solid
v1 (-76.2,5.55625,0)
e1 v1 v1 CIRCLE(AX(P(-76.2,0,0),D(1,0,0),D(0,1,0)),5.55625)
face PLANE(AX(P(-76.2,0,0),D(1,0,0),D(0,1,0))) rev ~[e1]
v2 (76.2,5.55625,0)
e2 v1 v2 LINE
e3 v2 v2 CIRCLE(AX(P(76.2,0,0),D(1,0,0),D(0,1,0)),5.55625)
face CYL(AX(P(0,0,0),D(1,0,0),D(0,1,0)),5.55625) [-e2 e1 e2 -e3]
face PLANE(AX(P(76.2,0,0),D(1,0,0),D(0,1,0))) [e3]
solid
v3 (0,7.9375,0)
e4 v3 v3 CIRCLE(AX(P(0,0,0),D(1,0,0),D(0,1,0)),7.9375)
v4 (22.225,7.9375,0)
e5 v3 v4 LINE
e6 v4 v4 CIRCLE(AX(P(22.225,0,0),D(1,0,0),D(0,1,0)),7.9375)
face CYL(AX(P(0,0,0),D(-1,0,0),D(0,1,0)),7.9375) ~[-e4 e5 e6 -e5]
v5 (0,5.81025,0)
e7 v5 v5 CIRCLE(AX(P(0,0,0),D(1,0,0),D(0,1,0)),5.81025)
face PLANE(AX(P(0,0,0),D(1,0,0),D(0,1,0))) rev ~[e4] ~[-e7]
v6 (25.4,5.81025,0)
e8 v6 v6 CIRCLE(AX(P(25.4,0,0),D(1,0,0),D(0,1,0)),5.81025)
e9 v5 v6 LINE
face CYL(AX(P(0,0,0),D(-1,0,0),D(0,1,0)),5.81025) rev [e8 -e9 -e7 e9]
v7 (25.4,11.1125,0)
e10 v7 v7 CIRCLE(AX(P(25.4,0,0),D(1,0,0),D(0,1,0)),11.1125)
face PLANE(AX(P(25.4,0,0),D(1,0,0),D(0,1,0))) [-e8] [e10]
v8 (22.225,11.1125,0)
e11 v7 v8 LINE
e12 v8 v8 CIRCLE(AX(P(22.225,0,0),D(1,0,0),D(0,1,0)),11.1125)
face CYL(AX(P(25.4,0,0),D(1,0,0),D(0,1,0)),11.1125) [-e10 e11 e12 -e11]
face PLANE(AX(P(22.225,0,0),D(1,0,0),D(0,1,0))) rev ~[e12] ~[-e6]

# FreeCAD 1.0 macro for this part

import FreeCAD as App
import Part
import Sketcher
from FreeCAD import Vector
Q = App.Units.Quantity

doc = App.newDocument("Part")
params = doc.addObject("Spreadsheet::Sheet", "Params")
for row, (alias, value) in enumerate([
    ("sketch1_diameter", "0.4375 in"),
    ("pad1_length", "6 in"),
    ("sketch2_diameter", "0.625 in"),
    ("pad2_length", "1 in"),
    ("sketch3_diameter", "0.875 in"),
    ("sketch3_diameter2", "0.625 in"),
    ("pad3_length", "0.125 in"),
], start=1):
    params.set(f"A{row}", alias)
    params.set(f"B{row}", "=" + value)
    params.setAlias(f"B{row}", alias)

body = doc.addObject("PartDesign::Body", "Body")

sketch1 = body.newObject("Sketcher::SketchObject", "Sketch")
sketch1.AttachmentSupport = (doc.getObject("YZ_Plane"), [""])
sketch1.MapMode = "FlatFace"
sketch1.addGeometry(Part.Circle(Vector(0, 0, 0), Vector(0, 0, 1), 5.55625), False)
sketch1.addConstraint([
    Sketcher.Constraint("Coincident", 0, 3, -1, 1),
    Sketcher.Constraint("Diameter", 0, Q("0.4375 in")),
])
sketch1.setExpression("Constraints[1]", "Params.sketch1_diameter")
pad1 = body.newObject("PartDesign::Pad", "Pad")
pad1.Profile = sketch1
pad1.setExpression("Length", "Params.pad1_length")
pad1.Midplane = True
body2 = doc.addObject("PartDesign::Body", "Body001")

sketch2 = body2.newObject("Sketcher::SketchObject", "Sketch001")
sketch2.AttachmentSupport = (doc.getObject("YZ_Plane001"), [""])
sketch2.MapMode = "FlatFace"
sketch2.addGeometry([
    Part.Circle(Vector(0, 0, 0), Vector(0, 0, 1), 7.9375),
    Part.Circle(Vector(0, 0, 0), Vector(0, 0, 1), 5.81025),
], False)
sketch2.addConstraint([
    Sketcher.Constraint("Coincident", 0, 3, -1, 1),
    Sketcher.Constraint("Coincident", 1, 3, -1, 1),
    Sketcher.Constraint("Diameter", 0, Q("0.625 in")),
    Sketcher.Constraint("Diameter", 1, Q("0.4575 in")),
])
sketch2.setExpression("Constraints[2]", "Params.sketch2_diameter")
pad2 = body2.newObject("PartDesign::Pad", "Pad001")
pad2.Profile = sketch2
pad2.setExpression("Length", "Params.pad2_length")

sketch3 = body2.newObject("Sketcher::SketchObject", "Sketch002")
sketch3.AttachmentSupport = (doc.getObject("YZ_Plane001"), [""])
sketch3.MapMode = "FlatFace"
sketch3.AttachmentOffset = App.Placement(Vector(0, 0, 1 * 25.4), App.Rotation())
sketch3.addGeometry([
    Part.Circle(Vector(0, 0, 0), Vector(0, 0, 1), 11.1125),
    Part.Circle(Vector(0, 0, 0), Vector(0, 0, 1), 7.9375),
], False)
sketch3.addConstraint([
    Sketcher.Constraint("Coincident", 0, 3, -1, 1),
    Sketcher.Constraint("Coincident", 1, 3, -1, 1),
    Sketcher.Constraint("Diameter", 0, Q("0.875 in")),
    Sketcher.Constraint("Diameter", 1, Q("0.625 in")),
])
sketch3.setExpression("Constraints[2]", "Params.sketch3_diameter")
sketch3.setExpression("Constraints[3]", "Params.sketch3_diameter2")
pad3 = body2.newObject("PartDesign::Pad", "Pad002")
pad3.Profile = sketch3
pad3.setExpression("Length", "Params.pad3_length")
pad3.Reversed = True

doc.recompute()
